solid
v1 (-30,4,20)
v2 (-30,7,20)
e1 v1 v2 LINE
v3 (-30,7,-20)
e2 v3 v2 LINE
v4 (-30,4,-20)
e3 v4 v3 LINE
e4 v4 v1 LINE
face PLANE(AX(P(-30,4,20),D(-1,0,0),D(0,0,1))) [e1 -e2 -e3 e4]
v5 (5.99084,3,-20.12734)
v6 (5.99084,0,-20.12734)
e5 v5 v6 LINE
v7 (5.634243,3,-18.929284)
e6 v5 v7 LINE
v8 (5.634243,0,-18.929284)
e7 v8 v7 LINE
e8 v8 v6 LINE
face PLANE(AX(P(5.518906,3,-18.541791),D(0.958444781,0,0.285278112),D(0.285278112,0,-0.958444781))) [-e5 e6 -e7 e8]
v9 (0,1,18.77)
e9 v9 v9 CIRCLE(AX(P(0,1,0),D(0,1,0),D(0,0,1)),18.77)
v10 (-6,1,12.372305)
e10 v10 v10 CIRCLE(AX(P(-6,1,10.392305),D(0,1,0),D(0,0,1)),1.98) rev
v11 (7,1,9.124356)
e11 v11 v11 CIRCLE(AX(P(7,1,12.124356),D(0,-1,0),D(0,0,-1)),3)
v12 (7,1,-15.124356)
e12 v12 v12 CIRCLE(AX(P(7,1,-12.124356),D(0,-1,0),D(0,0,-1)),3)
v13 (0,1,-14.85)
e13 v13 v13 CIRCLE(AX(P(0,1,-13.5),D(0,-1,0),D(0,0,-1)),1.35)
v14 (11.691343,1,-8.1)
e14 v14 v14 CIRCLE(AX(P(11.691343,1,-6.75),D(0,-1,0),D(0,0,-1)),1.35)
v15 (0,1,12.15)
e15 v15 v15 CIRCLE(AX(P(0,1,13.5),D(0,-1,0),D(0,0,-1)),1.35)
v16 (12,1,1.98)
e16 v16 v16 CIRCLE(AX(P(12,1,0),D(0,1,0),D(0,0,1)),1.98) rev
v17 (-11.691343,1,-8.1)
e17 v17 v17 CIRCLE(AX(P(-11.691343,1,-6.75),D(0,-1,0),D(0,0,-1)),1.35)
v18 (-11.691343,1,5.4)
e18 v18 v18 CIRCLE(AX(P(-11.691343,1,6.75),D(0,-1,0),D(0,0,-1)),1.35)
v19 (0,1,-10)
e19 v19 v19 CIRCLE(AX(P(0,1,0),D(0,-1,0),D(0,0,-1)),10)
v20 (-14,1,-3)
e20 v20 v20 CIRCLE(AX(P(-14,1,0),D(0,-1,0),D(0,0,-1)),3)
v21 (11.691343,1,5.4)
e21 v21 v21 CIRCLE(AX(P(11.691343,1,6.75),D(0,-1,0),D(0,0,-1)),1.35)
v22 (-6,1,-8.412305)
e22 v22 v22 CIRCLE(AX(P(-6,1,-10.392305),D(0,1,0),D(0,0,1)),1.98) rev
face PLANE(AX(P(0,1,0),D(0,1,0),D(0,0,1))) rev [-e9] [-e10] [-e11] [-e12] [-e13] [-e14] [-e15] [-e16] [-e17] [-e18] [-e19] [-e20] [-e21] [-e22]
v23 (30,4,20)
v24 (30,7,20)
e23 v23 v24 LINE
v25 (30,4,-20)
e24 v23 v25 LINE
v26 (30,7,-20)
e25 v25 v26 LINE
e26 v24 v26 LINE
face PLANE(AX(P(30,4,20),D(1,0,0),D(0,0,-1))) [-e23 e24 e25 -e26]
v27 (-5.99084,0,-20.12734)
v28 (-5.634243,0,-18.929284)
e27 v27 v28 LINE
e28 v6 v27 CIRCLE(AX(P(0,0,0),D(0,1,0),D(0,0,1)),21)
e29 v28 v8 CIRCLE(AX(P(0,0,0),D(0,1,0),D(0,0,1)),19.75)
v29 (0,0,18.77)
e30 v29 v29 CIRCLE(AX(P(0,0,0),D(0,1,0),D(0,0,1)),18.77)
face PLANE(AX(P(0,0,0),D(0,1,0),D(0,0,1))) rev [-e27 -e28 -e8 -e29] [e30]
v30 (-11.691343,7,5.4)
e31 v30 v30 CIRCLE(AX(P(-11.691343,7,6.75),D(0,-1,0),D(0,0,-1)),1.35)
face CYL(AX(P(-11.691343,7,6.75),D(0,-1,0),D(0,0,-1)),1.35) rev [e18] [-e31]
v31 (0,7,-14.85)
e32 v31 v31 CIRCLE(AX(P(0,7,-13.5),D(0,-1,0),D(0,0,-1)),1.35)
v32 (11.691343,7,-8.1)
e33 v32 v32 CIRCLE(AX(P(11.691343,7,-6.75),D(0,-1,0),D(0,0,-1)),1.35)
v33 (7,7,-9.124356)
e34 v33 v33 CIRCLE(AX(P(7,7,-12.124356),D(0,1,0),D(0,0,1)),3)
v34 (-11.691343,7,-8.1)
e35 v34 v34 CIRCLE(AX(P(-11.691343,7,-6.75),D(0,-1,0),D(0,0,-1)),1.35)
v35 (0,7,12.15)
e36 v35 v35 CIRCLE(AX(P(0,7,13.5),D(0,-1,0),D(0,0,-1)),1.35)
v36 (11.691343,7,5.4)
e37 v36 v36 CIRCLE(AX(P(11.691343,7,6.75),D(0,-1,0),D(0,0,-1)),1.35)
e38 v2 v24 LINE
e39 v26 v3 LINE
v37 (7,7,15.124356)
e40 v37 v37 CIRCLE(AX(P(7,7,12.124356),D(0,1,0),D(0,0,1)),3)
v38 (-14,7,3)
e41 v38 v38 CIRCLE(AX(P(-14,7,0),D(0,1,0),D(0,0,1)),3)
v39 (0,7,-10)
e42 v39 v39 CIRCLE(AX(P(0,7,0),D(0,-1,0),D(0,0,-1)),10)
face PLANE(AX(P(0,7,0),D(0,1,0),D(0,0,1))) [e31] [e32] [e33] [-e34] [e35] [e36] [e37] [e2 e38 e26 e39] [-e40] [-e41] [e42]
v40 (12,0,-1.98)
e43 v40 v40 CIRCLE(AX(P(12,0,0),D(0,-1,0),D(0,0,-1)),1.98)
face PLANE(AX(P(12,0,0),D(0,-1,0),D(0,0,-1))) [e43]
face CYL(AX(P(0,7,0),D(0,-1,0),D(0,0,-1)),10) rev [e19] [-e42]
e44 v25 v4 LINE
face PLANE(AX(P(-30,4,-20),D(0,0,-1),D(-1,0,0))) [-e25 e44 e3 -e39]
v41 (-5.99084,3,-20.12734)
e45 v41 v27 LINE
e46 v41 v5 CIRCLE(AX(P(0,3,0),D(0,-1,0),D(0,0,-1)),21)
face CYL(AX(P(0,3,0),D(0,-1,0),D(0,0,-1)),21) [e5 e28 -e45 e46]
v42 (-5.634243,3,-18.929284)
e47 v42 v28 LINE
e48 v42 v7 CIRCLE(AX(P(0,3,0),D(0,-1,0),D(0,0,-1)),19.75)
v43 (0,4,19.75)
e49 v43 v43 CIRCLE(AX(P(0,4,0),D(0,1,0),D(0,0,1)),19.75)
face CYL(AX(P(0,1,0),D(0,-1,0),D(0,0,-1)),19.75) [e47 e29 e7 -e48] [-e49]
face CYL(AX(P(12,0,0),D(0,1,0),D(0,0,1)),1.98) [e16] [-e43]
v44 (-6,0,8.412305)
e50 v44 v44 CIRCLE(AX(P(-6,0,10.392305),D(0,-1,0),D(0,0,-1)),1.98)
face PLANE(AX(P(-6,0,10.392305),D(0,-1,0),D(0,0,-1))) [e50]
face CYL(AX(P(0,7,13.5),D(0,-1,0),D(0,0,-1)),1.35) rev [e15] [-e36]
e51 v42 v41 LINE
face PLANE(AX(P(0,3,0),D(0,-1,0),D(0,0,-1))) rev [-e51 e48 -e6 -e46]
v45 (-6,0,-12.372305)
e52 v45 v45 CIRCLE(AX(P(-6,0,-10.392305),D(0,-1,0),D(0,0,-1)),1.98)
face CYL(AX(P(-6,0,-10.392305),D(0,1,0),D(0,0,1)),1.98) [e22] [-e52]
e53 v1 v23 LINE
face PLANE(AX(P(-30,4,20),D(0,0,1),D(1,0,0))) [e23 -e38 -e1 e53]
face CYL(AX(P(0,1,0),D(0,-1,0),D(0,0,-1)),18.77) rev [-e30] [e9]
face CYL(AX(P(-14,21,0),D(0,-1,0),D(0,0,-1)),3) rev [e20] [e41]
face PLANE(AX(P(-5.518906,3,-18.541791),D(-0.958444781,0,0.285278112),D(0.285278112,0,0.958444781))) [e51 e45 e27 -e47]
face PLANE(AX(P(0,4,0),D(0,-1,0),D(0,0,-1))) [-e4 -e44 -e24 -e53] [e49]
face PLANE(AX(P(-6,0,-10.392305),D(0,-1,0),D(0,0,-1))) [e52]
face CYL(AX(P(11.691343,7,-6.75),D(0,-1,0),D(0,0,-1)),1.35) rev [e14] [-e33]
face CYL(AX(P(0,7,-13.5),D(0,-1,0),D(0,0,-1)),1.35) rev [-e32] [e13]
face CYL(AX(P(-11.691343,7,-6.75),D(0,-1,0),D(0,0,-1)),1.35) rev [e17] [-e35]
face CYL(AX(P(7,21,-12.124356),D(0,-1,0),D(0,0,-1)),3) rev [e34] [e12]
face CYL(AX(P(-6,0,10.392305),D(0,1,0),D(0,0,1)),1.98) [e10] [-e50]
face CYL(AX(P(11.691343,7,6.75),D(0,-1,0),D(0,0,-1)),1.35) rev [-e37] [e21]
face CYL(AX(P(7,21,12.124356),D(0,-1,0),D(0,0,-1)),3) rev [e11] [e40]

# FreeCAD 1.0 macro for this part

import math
import FreeCAD as App
import Part
import Sketcher
from FreeCAD import Vector
Q = App.Units.Quantity

doc = App.newDocument("Part")
body = doc.addObject("PartDesign::Body", "Body")

sketch1 = body.newObject("Sketcher::SketchObject", "Sketch")
sketch1.AttachmentSupport = (doc.getObject("XZ_Plane"), [""])
sketch1.MapMode = "FlatFace"
sketch1.addGeometry(Part.Circle(Vector(0, 0, 0), Vector(0, 0, 1), 20), False)
sketch1.addGeometry(Part.Circle(Vector(0, 0, 0), Vector(0, 0, 1), 19), False)
sketch1.addConstraint(Sketcher.Constraint("Coincident", 0, 3, -1, 1))
sketch1.addConstraint(Sketcher.Constraint("Coincident", 1, 3, -1, 1))
sketch1.addConstraint(Sketcher.Constraint("Diameter", 0, Q("39.5 mm")))
sketch1.addConstraint(Sketcher.Constraint("Diameter", 1, Q("37.54 mm")))
pad1 = body.newObject("PartDesign::Pad", "Pad")
pad1.Profile = sketch1
pad1.Length = 1
pad1.Reversed = True

sketch2 = body.newObject("Sketcher::SketchObject", "Sketch001")
sketch2.AttachmentSupport = (doc.getObject("XZ_Plane"), [""])
sketch2.MapMode = "FlatFace"
sketch2.AttachmentOffset = App.Placement(Vector(0, 0, -1), App.Rotation())
sketch2.addGeometry(Part.Circle(Vector(0, 0, 0), Vector(0, 0, 1), 20), False)
sketch2.addConstraint(Sketcher.Constraint("Coincident", 0, 3, -1, 1))
sketch2.addConstraint(Sketcher.Constraint("Diameter", 0, Q("39.5 mm")))
pad2 = body.newObject("PartDesign::Pad", "Pad001")
pad2.Profile = sketch2
pad2.Length = 6
pad2.Reversed = True

sketch3 = body.newObject("Sketcher::SketchObject", "Sketch002")
sketch3.AttachmentSupport = (doc.getObject("XZ_Plane"), [""])
sketch3.MapMode = "FlatFace"
sketch3.AttachmentOffset = App.Placement(Vector(0, 0, -1), App.Rotation())
sketch3.addGeometry(Part.Circle(Vector(0, 13.5, 0), Vector(0, 0, 1), 1.4), False)
sketch3.addGeometry(Part.Circle(Vector(11.7, 6.8, 0), Vector(0, 0, 1), 1.4), False)
sketch3.addGeometry(Part.Circle(Vector(11.7, -6.8, 0), Vector(0, 0, 1), 1.4), False)
sketch3.addGeometry(Part.Circle(Vector(0, -13.5, 0), Vector(0, 0, 1), 1.4), False)
sketch3.addGeometry(Part.Circle(Vector(-11.7, -6.8, 0), Vector(0, 0, 1), 1.4), False)
sketch3.addGeometry(Part.Circle(Vector(-11.7, 6.8, 0), Vector(0, 0, 1), 1.4), False)
sketch3.addGeometry(Part.Circle(Vector(0, 0, 0), Vector(0, 0, 1), 10), False)
sketch3.addConstraint(Sketcher.Constraint("Coincident", 6, 3, -1, 1))
sketch3.addConstraint(Sketcher.Constraint("Equal", 0, 1))
sketch3.addConstraint(Sketcher.Constraint("Equal", 1, 2))
sketch3.addConstraint(Sketcher.Constraint("Equal", 2, 3))
sketch3.addConstraint(Sketcher.Constraint("Equal", 3, 4))
sketch3.addConstraint(Sketcher.Constraint("Equal", 4, 5))
sketch3.addConstraint(Sketcher.Constraint("Symmetric", 0, 3, 3, 3, -1, 1))
sketch3.addConstraint(Sketcher.Constraint("Symmetric", 1, 3, 4, 3, -1, 1))
sketch3.addConstraint(Sketcher.Constraint("Symmetric", 2, 3, 5, 3, -1, 1))
sketch3.addConstraint(Sketcher.Constraint("Symmetric", 2, 3, 4, 3, -2))
sketch3.addConstraint(Sketcher.Constraint("PointOnObject", 0, 3, -2))
sketch3.addConstraint(Sketcher.Constraint("Diameter", 6, Q("20 mm")))
sketch3.addConstraint(Sketcher.Constraint("Diameter", 0, Q("2.7 mm")))
sketch3.addConstraint(Sketcher.Constraint("DistanceY", 3, 3, 0, 3, Q("27 mm")))
sketch3.addConstraint(Sketcher.Constraint("DistanceY", 2, 3, 1, 3, Q("13.5 mm")))
sketch3.addConstraint(Sketcher.Constraint("DistanceX", -1, 1, 1, 3, Q("11.691343 mm")))
pocket1 = body.newObject("PartDesign::Pocket", "Pocket")
pocket1.Profile = sketch3
pocket1.Type = "ThroughAll"

sketch4 = body.newObject("Sketcher::SketchObject", "Sketch003")
sketch4.AttachmentSupport = (doc.getObject("XZ_Plane"), [""])
sketch4.MapMode = "FlatFace"
sketch4.AttachmentOffset = App.Placement(Vector(0, 0, -1), App.Rotation())
sketch4.addGeometry(Part.Circle(Vector(12, 0, 0), Vector(0, 0, 1), 2), False)
sketch4.addGeometry(Part.Circle(Vector(-6, -10.4, 0), Vector(0, 0, 1), 2), False)
sketch4.addGeometry(Part.Circle(Vector(-6, 10.4, 0), Vector(0, 0, 1), 2), False)
sketch4.addConstraint(Sketcher.Constraint("Equal", 0, 1))
sketch4.addConstraint(Sketcher.Constraint("Equal", 1, 2))
sketch4.addConstraint(Sketcher.Constraint("Symmetric", 1, 3, 2, 3, -1))
sketch4.addConstraint(Sketcher.Constraint("PointOnObject", 0, 3, -1))
sketch4.addConstraint(Sketcher.Constraint("Diameter", 0, Q("3.96 mm")))
sketch4.addConstraint(Sketcher.Constraint("DistanceX", -1, 1, 0, 3, Q("12 mm")))
sketch4.addConstraint(Sketcher.Constraint("DistanceX", 1, 3, -1, 1, Q("6 mm")))
sketch4.addConstraint(Sketcher.Constraint("DistanceY", 1, 3, 2, 3, Q("20.78461 mm")))
pad3 = body.newObject("PartDesign::Pad", "Pad002")
pad3.Profile = sketch4
pad3.Length = 1

sketch5 = body.newObject("Sketcher::SketchObject", "Sketch004")
sketch5.AttachmentSupport = (doc.getObject("XZ_Plane"), [""])
sketch5.MapMode = "FlatFace"
sketch5.AttachmentOffset = App.Placement(Vector(0, 0, -4), App.Rotation())
sketch5.addGeometry(Part.LineSegment(Vector(-30, -20, 0), Vector(-30, 20, 0)), False)
sketch5.addGeometry(Part.LineSegment(Vector(-30, 20, 0), Vector(30, 20, 0)), False)
sketch5.addGeometry(Part.LineSegment(Vector(30, 20, 0), Vector(30, -20, 0)), False)
sketch5.addGeometry(Part.LineSegment(Vector(30, -20, 0), Vector(-30, -20, 0)), False)
sketch5.addGeometry(Part.Circle(Vector(0, 0, 0), Vector(0, 0, 1), 20), False)
sketch5.addConstraint(Sketcher.Constraint("Coincident", 0, 2, 1, 1))
sketch5.addConstraint(Sketcher.Constraint("Coincident", 1, 2, 2, 1))
sketch5.addConstraint(Sketcher.Constraint("Coincident", 2, 2, 3, 1))
sketch5.addConstraint(Sketcher.Constraint("Coincident", 3, 2, 0, 1))
sketch5.addConstraint(Sketcher.Constraint("Vertical", 0))
sketch5.addConstraint(Sketcher.Constraint("Horizontal", 1))
sketch5.addConstraint(Sketcher.Constraint("Vertical", 2))
sketch5.addConstraint(Sketcher.Constraint("Horizontal", 3))
sketch5.addConstraint(Sketcher.Constraint("Coincident", 4, 3, -1, 1))
sketch5.addConstraint(Sketcher.Constraint("Symmetric", 0, 2, 2, 2, -1, 1))
sketch5.addConstraint(Sketcher.Constraint("Diameter", 4, Q("39.5 mm")))
sketch5.addConstraint(Sketcher.Constraint("DistanceX", 1, 1, 1, 2, Q("60 mm")))
sketch5.addConstraint(Sketcher.Constraint("DistanceY", 0, 1, 0, 2, Q("40 mm")))
pad4 = body.newObject("PartDesign::Pad", "Pad003")
pad4.Profile = sketch5
pad4.Length = 3
pad4.Reversed = True

sketch6 = body.newObject("Sketcher::SketchObject", "Sketch005")
sketch6.AttachmentSupport = (doc.getObject("XZ_Plane"), [""])
sketch6.MapMode = "FlatFace"
sketch6.AttachmentOffset = App.Placement(Vector(0, 0, -1), App.Rotation())
sketch6.addGeometry(Part.Circle(Vector(-14, 0, 0), Vector(0, 0, 1), 3), False)
sketch6.addGeometry(Part.Circle(Vector(7, 12.1, 0), Vector(0, 0, 1), 3), False)
sketch6.addGeometry(Part.Circle(Vector(7, -12.1, 0), Vector(0, 0, 1), 3), False)
sketch6.addConstraint(Sketcher.Constraint("Equal", 0, 1))
sketch6.addConstraint(Sketcher.Constraint("Equal", 1, 2))
sketch6.addConstraint(Sketcher.Constraint("Symmetric", 1, 3, 2, 3, -1))
sketch6.addConstraint(Sketcher.Constraint("PointOnObject", 0, 3, -1))
sketch6.addConstraint(Sketcher.Constraint("Diameter", 0, Q("6 mm")))
sketch6.addConstraint(Sketcher.Constraint("DistanceX", 0, 3, -1, 1, Q("14 mm")))
sketch6.addConstraint(Sketcher.Constraint("DistanceX", -1, 1, 1, 3, Q("7 mm")))
sketch6.addConstraint(Sketcher.Constraint("DistanceY", 2, 3, 1, 3, Q("24.248711 mm")))
pocket2 = body.newObject("PartDesign::Pocket", "Pocket001")
pocket2.Profile = sketch6
pocket2.Length = 20

sketch7 = body.newObject("Sketcher::SketchObject", "Sketch006")
sketch7.AttachmentSupport = (doc.getObject("XZ_Plane"), [""])
sketch7.MapMode = "FlatFace"
sketch7.AttachmentOffset = App.Placement(Vector(0, 0, -1), App.Rotation())
sketch7.addGeometry(Part.LineSegment(Vector(6, -20.1, 0), Vector(5.5, -18.5, 0)), False)
sketch7.addGeometry(Part.ArcOfCircle(Part.Circle(Vector(0, 0, 0), Vector(0, 0, 1), 19.3), math.radians(-107), math.radians(-73)), False)
sketch7.addGeometry(Part.LineSegment(Vector(-5.5, -18.5, 0), Vector(-6, -20.1, 0)), False)
sketch7.addGeometry(Part.ArcOfCircle(Part.Circle(Vector(0, 0, 0), Vector(0, 0, 1), 21), math.radians(-107), math.radians(-73)), False)
sketch7.addConstraint(Sketcher.Constraint("Coincident", 0, 2, 1, 2))
sketch7.addConstraint(Sketcher.Constraint("Coincident", 1, 1, 2, 1))
sketch7.addConstraint(Sketcher.Constraint("Coincident", 2, 2, 3, 1))
sketch7.addConstraint(Sketcher.Constraint("Coincident", 3, 2, 0, 1))
sketch7.addConstraint(Sketcher.Constraint("Coincident", 1, 3, -1, 1))
sketch7.addConstraint(Sketcher.Constraint("Coincident", 3, 3, -1, 1))
sketch7.addConstraint(Sketcher.Constraint("Horizontal", 0, 2, 1, 1))
sketch7.addConstraint(Sketcher.Constraint("Horizontal", 2, 2, 3, 2))
sketch7.addConstraint(Sketcher.Constraint("Radius", 3, Q("21 mm")))
sketch7.addConstraint(Sketcher.Constraint("Radius", 1, Q("19.345706 mm")))
sketch7.addConstraint(Sketcher.Constraint("DistanceY", 0, 2, -1, 1, Q("18.541791 mm")))
sketch7.addConstraint(Sketcher.Constraint("DistanceX", 2, 2, -1, 1, Q("5.99084 mm")))
pad5 = body.newObject("PartDesign::Pad", "Pad004")
pad5.Profile = sketch7
pad5.Type = "TwoLengths"
pad5.Length = 1
pad5.Length2 = 2

doc.recompute()
